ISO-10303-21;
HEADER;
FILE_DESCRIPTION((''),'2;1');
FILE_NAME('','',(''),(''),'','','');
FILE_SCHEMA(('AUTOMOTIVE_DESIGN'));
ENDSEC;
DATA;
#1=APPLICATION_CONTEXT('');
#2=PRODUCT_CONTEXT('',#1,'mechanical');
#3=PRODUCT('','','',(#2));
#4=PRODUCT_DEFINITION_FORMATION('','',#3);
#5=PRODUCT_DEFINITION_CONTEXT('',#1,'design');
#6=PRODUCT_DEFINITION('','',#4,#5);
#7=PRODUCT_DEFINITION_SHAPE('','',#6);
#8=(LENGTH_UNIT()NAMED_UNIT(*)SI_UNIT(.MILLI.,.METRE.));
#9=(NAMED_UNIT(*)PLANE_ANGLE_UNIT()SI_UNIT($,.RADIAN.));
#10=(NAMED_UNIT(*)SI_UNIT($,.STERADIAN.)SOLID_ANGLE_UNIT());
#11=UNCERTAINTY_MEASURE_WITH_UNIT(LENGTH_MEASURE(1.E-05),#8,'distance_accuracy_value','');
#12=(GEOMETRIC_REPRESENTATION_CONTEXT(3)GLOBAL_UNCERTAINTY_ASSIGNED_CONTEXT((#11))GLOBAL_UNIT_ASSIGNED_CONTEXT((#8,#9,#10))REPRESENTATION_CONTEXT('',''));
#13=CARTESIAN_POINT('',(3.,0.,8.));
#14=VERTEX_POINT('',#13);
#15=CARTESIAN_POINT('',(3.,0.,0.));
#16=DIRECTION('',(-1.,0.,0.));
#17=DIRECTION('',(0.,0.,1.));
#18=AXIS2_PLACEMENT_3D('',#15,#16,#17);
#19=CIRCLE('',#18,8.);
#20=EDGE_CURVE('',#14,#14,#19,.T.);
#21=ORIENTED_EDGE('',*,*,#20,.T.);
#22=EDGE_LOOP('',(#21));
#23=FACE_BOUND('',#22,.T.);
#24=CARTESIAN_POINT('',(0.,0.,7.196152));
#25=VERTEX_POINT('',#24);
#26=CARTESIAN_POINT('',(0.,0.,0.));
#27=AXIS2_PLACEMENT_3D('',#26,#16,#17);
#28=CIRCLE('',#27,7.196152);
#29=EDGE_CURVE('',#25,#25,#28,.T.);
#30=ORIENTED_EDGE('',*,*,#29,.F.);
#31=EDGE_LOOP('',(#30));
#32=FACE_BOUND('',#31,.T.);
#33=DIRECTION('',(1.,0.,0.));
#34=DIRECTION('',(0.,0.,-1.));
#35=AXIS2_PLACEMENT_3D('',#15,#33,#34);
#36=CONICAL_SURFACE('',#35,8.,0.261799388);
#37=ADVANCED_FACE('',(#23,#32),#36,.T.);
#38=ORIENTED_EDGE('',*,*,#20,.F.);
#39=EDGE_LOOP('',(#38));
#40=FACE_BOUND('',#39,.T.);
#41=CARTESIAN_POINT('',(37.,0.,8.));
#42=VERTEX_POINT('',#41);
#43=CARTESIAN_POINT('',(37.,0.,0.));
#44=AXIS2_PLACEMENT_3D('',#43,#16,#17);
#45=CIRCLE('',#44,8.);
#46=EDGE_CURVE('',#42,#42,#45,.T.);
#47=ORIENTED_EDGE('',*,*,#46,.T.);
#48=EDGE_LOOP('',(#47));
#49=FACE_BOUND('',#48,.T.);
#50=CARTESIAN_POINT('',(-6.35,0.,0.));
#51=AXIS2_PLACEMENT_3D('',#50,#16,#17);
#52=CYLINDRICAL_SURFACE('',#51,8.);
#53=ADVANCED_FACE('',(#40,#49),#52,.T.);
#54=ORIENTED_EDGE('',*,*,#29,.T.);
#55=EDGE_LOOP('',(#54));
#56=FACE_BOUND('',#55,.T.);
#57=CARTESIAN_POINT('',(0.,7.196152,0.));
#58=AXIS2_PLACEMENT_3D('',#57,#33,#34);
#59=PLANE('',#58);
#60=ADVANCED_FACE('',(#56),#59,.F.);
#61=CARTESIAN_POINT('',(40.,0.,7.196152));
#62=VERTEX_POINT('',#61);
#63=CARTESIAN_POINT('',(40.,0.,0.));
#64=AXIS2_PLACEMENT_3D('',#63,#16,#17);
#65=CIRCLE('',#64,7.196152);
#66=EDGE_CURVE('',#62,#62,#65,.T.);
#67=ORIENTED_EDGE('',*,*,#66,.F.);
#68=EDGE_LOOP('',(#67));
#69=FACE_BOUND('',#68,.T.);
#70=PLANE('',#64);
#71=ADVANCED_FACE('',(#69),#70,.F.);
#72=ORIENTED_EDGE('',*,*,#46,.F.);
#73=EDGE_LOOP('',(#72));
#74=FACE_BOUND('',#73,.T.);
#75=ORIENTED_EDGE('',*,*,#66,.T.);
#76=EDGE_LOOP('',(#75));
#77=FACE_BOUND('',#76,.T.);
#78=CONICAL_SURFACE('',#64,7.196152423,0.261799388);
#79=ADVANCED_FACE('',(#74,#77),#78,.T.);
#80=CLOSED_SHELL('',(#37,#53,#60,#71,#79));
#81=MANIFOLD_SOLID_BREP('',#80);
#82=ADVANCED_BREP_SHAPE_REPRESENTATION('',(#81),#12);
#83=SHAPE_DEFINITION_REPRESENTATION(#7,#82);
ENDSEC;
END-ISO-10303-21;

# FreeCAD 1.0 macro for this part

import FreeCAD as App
import Part
import Sketcher
Q = App.Units.Quantity


def add_polygon(sketch, points):
    """Adds a closed chain of lines whose ends are joined by coincident constraints."""
    first, n = sketch.GeometryCount, len(points)
    for a, b in zip(points, points[1:] + points[:1]):
        sketch.addGeometry(Part.LineSegment(App.Vector(*a, 0), App.Vector(*b, 0)), False)
    for i in range(n):
        sketch.addConstraint(Sketcher.Constraint("Coincident", first + i, 2, first + (i + 1) % n, 1))

doc = App.newDocument("Part")
body = doc.addObject("PartDesign::Body", "Body")

# Sketch on XY plane
sketch1 = body.newObject("Sketcher::SketchObject", "Sketch")
sketch1.AttachmentSupport = (doc.getObject("XY_Plane"), [""])
sketch1.MapMode = "FlatFace"
add_polygon(sketch1, [(0, 0), (40, 0), (40, 7.196152), (37, 8), (3, 8), (0, 7.196152)])  # lines 0-5
sketch1.addConstraint(Sketcher.Constraint("Horizontal", 0))
sketch1.addConstraint(Sketcher.Constraint("Vertical", 1))
sketch1.addConstraint(Sketcher.Constraint("Horizontal", 3))
sketch1.addConstraint(Sketcher.Constraint("Vertical", 5))
sketch1.addConstraint(Sketcher.Constraint("Coincident", 5, 2, -1, 1))
sketch1.addConstraint(Sketcher.Constraint("Horizontal", 1, 2, 4, 2))
sketch1.addConstraint(Sketcher.Constraint("Equal", 2, 4))
sketch1.addConstraint(Sketcher.Constraint("DistanceX", 0, 1, 0, 2, Q("40 mm")))
sketch1.addConstraint(Sketcher.Constraint("DistanceX", 3, 2, 3, 1, Q("34 mm")))
sketch1.addConstraint(Sketcher.Constraint("Angle", 2, Q("165 deg")))
sketch1.addConstraint(Sketcher.Constraint("DistanceY", -1, 1, 2, 2, Q("8 mm")))
revolution = body.newObject("PartDesign::Revolution", "Revolution")
revolution.Profile = sketch1
revolution.ReferenceAxis = (sketch1, ["H_Axis"])
revolution.Angle = 360

doc.recompute()
